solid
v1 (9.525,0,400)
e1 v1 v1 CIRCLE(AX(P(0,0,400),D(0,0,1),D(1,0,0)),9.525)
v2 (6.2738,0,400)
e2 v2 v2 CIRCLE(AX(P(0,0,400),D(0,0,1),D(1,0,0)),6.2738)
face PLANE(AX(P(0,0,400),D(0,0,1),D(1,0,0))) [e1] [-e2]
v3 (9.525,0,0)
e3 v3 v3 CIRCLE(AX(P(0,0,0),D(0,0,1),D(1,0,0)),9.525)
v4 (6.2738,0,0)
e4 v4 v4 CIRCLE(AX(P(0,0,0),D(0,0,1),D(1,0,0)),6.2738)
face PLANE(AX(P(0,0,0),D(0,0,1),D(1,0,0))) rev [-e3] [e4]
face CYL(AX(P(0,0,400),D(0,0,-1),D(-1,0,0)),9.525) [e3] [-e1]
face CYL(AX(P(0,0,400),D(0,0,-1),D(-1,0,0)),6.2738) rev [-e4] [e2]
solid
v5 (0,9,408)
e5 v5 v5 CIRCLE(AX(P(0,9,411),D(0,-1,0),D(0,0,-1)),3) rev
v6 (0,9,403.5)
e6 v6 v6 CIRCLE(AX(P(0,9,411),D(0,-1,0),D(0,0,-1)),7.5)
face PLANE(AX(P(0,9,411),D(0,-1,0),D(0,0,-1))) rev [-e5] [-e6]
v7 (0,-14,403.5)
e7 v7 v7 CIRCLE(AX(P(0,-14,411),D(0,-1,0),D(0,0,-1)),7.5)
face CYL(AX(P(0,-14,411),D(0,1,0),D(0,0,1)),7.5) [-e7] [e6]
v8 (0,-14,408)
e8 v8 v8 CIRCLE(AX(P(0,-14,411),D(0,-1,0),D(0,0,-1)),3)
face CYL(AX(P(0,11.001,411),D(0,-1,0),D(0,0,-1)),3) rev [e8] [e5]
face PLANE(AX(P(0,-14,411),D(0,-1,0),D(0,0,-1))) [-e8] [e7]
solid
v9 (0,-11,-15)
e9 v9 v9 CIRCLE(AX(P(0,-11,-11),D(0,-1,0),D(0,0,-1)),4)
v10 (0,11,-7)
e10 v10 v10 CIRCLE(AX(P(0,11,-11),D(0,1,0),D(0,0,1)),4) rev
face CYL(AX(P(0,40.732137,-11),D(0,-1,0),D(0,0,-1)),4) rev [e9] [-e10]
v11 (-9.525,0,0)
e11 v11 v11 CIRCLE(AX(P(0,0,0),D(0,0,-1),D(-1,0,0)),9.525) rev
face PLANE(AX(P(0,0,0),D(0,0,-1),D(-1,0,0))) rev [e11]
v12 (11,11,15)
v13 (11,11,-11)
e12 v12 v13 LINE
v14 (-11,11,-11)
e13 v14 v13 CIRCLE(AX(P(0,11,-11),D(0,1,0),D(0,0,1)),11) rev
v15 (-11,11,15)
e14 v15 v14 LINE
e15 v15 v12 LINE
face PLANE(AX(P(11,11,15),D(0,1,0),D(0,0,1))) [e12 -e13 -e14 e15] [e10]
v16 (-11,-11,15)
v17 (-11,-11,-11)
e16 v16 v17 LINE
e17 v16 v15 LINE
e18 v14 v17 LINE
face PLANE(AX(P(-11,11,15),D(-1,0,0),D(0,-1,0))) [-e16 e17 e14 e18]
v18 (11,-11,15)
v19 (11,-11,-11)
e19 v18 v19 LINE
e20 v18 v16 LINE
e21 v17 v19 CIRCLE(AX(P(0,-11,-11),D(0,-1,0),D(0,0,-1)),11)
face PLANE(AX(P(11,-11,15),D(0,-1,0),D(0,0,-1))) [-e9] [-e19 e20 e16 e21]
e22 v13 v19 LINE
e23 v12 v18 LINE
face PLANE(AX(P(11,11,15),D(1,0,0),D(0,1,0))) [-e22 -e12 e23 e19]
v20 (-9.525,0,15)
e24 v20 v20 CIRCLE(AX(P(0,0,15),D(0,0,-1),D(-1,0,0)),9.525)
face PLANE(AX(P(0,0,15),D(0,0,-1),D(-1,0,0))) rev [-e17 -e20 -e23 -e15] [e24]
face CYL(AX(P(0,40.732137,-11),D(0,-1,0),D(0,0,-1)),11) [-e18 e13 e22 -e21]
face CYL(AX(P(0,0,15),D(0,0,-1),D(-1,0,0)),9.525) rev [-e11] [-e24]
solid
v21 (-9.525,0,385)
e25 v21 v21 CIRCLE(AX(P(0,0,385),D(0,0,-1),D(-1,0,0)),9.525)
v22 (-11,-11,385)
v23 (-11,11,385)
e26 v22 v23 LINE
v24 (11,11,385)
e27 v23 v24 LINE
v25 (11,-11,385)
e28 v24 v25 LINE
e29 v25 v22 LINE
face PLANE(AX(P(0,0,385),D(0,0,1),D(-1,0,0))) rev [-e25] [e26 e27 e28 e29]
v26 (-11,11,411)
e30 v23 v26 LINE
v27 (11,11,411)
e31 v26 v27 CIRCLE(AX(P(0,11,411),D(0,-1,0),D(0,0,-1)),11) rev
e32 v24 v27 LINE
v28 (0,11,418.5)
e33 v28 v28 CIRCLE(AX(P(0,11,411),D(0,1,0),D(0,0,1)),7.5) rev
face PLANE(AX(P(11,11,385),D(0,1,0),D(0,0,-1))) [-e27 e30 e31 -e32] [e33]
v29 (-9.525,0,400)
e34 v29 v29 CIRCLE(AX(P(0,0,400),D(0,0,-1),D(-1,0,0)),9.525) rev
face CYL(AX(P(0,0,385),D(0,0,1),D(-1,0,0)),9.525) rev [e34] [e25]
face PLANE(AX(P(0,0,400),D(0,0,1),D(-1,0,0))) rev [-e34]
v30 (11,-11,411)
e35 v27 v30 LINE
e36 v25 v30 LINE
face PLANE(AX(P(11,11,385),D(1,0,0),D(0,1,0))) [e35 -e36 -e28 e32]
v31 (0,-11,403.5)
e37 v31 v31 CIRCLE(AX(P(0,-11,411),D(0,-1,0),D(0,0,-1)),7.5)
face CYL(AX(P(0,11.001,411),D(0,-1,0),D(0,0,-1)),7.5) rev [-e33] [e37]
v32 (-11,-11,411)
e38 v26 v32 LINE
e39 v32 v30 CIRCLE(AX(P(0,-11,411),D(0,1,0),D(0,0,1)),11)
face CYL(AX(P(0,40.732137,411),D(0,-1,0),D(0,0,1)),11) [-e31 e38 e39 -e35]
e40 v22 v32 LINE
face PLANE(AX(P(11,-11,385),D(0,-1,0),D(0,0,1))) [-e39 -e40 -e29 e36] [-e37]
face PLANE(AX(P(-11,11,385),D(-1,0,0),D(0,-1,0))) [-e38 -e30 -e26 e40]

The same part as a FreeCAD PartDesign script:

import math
import FreeCAD as App
import Part
import Sketcher

V = App.Vector
Q = App.Units.Quantity

doc = App.newDocument("Part")
body = doc.addObject("PartDesign::Body", "Body")

# Sketch on XY plane
sketch1 = doc.addObject("Sketcher::SketchObject", "Sketch")
body.addObject(sketch1)
sketch1.AttachmentSupport = (doc.XY_Plane, [""])
sketch1.MapMode = "FlatFace"
sketch1.addGeometry([
    Part.Circle(V(0, 0, 0), V(0, 0, 1), 10),
    Part.Circle(V(0, 0, 0), V(0, 0, 1), 6),
], False)
sketch1.addConstraint([
    Sketcher.Constraint("Coincident", 0, 3, -1, 1),
    Sketcher.Constraint("Coincident", 1, 3, -1, 1),
    Sketcher.Constraint("Diameter", 0, Q("19.05 mm")),
    Sketcher.Constraint("Diameter", 1, Q("12.5476 mm")),
])
pad1 = doc.addObject("PartDesign::Pad", "Pad")
body.addObject(pad1)
pad1.Profile = sketch1
pad1.Length = 400
body2 = doc.addObject("PartDesign::Body", "Body001")

# Sketch on XY plane
sketch2 = doc.addObject("Sketcher::SketchObject", "Sketch001")
body2.addObject(sketch2)
sketch2.AttachmentSupport = (doc.getObject("XY_Plane001"), [""])
sketch2.MapMode = "FlatFace"
sketch2.addGeometry([
    Part.LineSegment(V(11, 11, 0), V(11, -11, 0)),  # 0
    Part.LineSegment(V(11, -11, 0), V(-11, -11, 0)),  # 1
    Part.LineSegment(V(-11, -11, 0), V(-11, 11, 0)),  # 2
    Part.LineSegment(V(-11, 11, 0), V(11, 11, 0)),  # 3
    Part.Circle(V(0, 0, 0), V(0, 0, 1), 10),  # 4
], False)
sketch2.addConstraint([
    Sketcher.Constraint("Coincident", 0, 2, 1, 1),
    Sketcher.Constraint("Coincident", 1, 2, 2, 1),
    Sketcher.Constraint("Coincident", 2, 2, 3, 1),
    Sketcher.Constraint("Coincident", 3, 2, 0, 1),
    Sketcher.Constraint("Vertical", 0),
    Sketcher.Constraint("Horizontal", 1),
    Sketcher.Constraint("Vertical", 2),
    Sketcher.Constraint("Horizontal", 3),
    Sketcher.Constraint("Coincident", 4, 3, -1, 1),
    Sketcher.Constraint("Symmetric", 0, 2, 2, 2, -1, 1),
    Sketcher.Constraint("Equal", 3, 0),
    Sketcher.Constraint("Diameter", 4, Q("19.05 mm")),
    Sketcher.Constraint("DistanceX", 1, 2, 1, 1, Q("22 mm")),
])
pad2 = doc.addObject("PartDesign::Pad", "Pad001")
body2.addObject(pad2)
pad2.Profile = sketch2
pad2.Length = 15
body3 = doc.addObject("PartDesign::Body", "Body002")

# Sketch on XY plane
sketch3 = doc.addObject("Sketcher::SketchObject", "Sketch002")
body3.addObject(sketch3)
sketch3.AttachmentSupport = (doc.getObject("XY_Plane002"), [""])
sketch3.MapMode = "FlatFace"
sketch3.addGeometry([
    Part.LineSegment(V(11, 11, 0), V(11, -11, 0)),
    Part.LineSegment(V(11, -11, 0), V(-11, -11, 0)),
    Part.LineSegment(V(-11, -11, 0), V(-11, 11, 0)),
    Part.LineSegment(V(-11, 11, 0), V(11, 11, 0)),
], False)
sketch3.addConstraint([
    Sketcher.Constraint("Coincident", 0, 2, 1, 1),
    Sketcher.Constraint("Coincident", 1, 2, 2, 1),
    Sketcher.Constraint("Coincident", 2, 2, 3, 1),
    Sketcher.Constraint("Coincident", 3, 2, 0, 1),
    Sketcher.Constraint("Vertical", 0),
    Sketcher.Constraint("Horizontal", 1),
    Sketcher.Constraint("Vertical", 2),
    Sketcher.Constraint("Horizontal", 3),
    Sketcher.Constraint("Symmetric", 0, 2, 2, 2, -1, 1),
    Sketcher.Constraint("Equal", 3, 0),
    Sketcher.Constraint("DistanceX", 1, 2, 1, 1, Q("22 mm")),
])
pad3 = doc.addObject("PartDesign::Pad", "Pad002")
body3.addObject(pad3)
pad3.Profile = sketch3
pad3.Length = 2
pad3.Reversed = True
doc.recompute()

boolean = doc.addObject("PartDesign::Boolean", "Boolean")
body2.addObject(boolean)
boolean.Type = "Fuse"
boolean.addObjects([body3])

# Sketch on XZ plane
sketch4 = doc.addObject("Sketcher::SketchObject", "Sketch003")
body2.addObject(sketch4)
sketch4.AttachmentSupport = (doc.getObject("XZ_Plane001"), [""])
sketch4.MapMode = "FlatFace"
sketch4.AttachmentOffset = App.Placement(V(0, 0, 11), App.Rotation())
sketch4.addGeometry([
    Part.LineSegment(V(11, -11, 0), V(11, -2, 0)),  # 0
    Part.LineSegment(V(11, -2, 0), V(-11, -2, 0)),  # 1
    Part.LineSegment(V(-11, -2, 0), V(-11, -11, 0)),  # 2
    Part.ArcOfCircle(Part.Circle(V(0, -11, 0), V(0, 0, 1), 11), math.radians(180), math.radians(360)),  # 3
    Part.Circle(V(0, -11, 0), V(0, 0, 1), 4),  # 4
], False)
sketch4.addConstraint([
    Sketcher.Constraint("Coincident", 0, 2, 1, 1),
    Sketcher.Constraint("Coincident", 1, 2, 2, 1),
    Sketcher.Constraint("Tangent", 2, 2, 3, 1),
    Sketcher.Constraint("Tangent", 3, 2, 0, 1),
    Sketcher.Constraint("Vertical", 0),
    Sketcher.Constraint("Horizontal", 1),
    Sketcher.Constraint("Vertical", 2),
    Sketcher.Constraint("Coincident", 4, 3, 3, 3),
    Sketcher.Constraint("PointOnObject", 3, 3, -2),
    Sketcher.Constraint("Diameter", 4, Q("8 mm")),
    Sketcher.Constraint("Radius", 3, Q("11 mm")),
    Sketcher.Constraint("DistanceY", 0, 1, 0, 2, Q("9 mm")),
    Sketcher.Constraint("DistanceY", 3, 3, -1, 1, Q("11 mm")),
])
pad4 = doc.addObject("PartDesign::Pad", "Pad003")
body2.addObject(pad4)
pad4.Profile = sketch4
pad4.Length = 22
pad4.Reversed = True
body4 = doc.addObject("PartDesign::Body", "Body003")
doc.recompute()

mirroring = doc.addObject("Part::Mirroring", "Mirroring")
mirroring.Source = body2
mirroring.Base = V(0, 0, 200)
mirroring.Normal = V(0, 0, -1)
body4.BaseFeature = mirroring
doc.recompute()

# Sketch on XZ plane
sketch5 = doc.addObject("Sketcher::SketchObject", "Sketch004")
body4.addObject(sketch5)
sketch5.AttachmentSupport = (doc.getObject("XZ_Plane003"), [""])
sketch5.MapMode = "FlatFace"
sketch5.AttachmentOffset = App.Placement(V(0, 0, 11), App.Rotation())
sketch5.addGeometry(Part.Circle(V(0, 411, 0), V(0, 0, 1), 8), False)
sketch5.addConstraint([
    Sketcher.Constraint("PointOnObject", 0, 3, -2),
    Sketcher.Constraint("Diameter", 0, Q("15 mm")),
    Sketcher.Constraint("DistanceY", -1, 1, 0, 3, Q("411 mm")),
])
pocket1 = doc.addObject("PartDesign::Pocket", "Pocket")
body4.addObject(pocket1)
pocket1.Profile = sketch5
pocket1.Length = 22
body5 = doc.addObject("PartDesign::Body", "Body004")

# Sketch on XZ plane
sketch6 = doc.addObject("Sketcher::SketchObject", "Sketch005")
body5.addObject(sketch6)
sketch6.AttachmentSupport = (doc.getObject("XZ_Plane004"), [""])
sketch6.MapMode = "FlatFace"
sketch6.AttachmentOffset = App.Placement(V(0, 0, 11), App.Rotation())
sketch6.addGeometry(Part.Circle(V(0, 411, 0), V(0, 0, 1), 8), False)
sketch6.addConstraint([
    Sketcher.Constraint("PointOnObject", 0, 3, -2),
    Sketcher.Constraint("Diameter", 0, Q("15 mm")),
    Sketcher.Constraint("DistanceY", -1, 1, 0, 3, Q("411 mm")),
])
pad5 = doc.addObject("PartDesign::Pad", "Pad004")
body5.addObject(pad5)
pad5.Profile = sketch6
pad5.Type = "TwoLengths"
pad5.Length = 3
pad5.Length2 = 20

# Sketch on XZ plane
sketch7 = doc.addObject("Sketcher::SketchObject", "Sketch006")
body5.addObject(sketch7)
sketch7.AttachmentSupport = (doc.getObject("XZ_Plane004"), [""])
sketch7.MapMode = "FlatFace"
sketch7.AttachmentOffset = App.Placement(V(0, 0, 14), App.Rotation())
sketch7.addGeometry(Part.Circle(V(0, 411, 0), V(0, 0, 1), 3), False)
sketch7.addConstraint([
    Sketcher.Constraint("PointOnObject", 0, 3, -2),
    Sketcher.Constraint("Diameter", 0, Q("6 mm")),
    Sketcher.Constraint("DistanceY", -1, 1, 0, 3, Q("411 mm")),
])
pocket2 = doc.addObject("PartDesign::Pocket", "Pocket001")
body5.addObject(pocket2)
pocket2.Profile = sketch7
pocket2.Length = 23
mirroring.Visibility = False

doc.recompute()
